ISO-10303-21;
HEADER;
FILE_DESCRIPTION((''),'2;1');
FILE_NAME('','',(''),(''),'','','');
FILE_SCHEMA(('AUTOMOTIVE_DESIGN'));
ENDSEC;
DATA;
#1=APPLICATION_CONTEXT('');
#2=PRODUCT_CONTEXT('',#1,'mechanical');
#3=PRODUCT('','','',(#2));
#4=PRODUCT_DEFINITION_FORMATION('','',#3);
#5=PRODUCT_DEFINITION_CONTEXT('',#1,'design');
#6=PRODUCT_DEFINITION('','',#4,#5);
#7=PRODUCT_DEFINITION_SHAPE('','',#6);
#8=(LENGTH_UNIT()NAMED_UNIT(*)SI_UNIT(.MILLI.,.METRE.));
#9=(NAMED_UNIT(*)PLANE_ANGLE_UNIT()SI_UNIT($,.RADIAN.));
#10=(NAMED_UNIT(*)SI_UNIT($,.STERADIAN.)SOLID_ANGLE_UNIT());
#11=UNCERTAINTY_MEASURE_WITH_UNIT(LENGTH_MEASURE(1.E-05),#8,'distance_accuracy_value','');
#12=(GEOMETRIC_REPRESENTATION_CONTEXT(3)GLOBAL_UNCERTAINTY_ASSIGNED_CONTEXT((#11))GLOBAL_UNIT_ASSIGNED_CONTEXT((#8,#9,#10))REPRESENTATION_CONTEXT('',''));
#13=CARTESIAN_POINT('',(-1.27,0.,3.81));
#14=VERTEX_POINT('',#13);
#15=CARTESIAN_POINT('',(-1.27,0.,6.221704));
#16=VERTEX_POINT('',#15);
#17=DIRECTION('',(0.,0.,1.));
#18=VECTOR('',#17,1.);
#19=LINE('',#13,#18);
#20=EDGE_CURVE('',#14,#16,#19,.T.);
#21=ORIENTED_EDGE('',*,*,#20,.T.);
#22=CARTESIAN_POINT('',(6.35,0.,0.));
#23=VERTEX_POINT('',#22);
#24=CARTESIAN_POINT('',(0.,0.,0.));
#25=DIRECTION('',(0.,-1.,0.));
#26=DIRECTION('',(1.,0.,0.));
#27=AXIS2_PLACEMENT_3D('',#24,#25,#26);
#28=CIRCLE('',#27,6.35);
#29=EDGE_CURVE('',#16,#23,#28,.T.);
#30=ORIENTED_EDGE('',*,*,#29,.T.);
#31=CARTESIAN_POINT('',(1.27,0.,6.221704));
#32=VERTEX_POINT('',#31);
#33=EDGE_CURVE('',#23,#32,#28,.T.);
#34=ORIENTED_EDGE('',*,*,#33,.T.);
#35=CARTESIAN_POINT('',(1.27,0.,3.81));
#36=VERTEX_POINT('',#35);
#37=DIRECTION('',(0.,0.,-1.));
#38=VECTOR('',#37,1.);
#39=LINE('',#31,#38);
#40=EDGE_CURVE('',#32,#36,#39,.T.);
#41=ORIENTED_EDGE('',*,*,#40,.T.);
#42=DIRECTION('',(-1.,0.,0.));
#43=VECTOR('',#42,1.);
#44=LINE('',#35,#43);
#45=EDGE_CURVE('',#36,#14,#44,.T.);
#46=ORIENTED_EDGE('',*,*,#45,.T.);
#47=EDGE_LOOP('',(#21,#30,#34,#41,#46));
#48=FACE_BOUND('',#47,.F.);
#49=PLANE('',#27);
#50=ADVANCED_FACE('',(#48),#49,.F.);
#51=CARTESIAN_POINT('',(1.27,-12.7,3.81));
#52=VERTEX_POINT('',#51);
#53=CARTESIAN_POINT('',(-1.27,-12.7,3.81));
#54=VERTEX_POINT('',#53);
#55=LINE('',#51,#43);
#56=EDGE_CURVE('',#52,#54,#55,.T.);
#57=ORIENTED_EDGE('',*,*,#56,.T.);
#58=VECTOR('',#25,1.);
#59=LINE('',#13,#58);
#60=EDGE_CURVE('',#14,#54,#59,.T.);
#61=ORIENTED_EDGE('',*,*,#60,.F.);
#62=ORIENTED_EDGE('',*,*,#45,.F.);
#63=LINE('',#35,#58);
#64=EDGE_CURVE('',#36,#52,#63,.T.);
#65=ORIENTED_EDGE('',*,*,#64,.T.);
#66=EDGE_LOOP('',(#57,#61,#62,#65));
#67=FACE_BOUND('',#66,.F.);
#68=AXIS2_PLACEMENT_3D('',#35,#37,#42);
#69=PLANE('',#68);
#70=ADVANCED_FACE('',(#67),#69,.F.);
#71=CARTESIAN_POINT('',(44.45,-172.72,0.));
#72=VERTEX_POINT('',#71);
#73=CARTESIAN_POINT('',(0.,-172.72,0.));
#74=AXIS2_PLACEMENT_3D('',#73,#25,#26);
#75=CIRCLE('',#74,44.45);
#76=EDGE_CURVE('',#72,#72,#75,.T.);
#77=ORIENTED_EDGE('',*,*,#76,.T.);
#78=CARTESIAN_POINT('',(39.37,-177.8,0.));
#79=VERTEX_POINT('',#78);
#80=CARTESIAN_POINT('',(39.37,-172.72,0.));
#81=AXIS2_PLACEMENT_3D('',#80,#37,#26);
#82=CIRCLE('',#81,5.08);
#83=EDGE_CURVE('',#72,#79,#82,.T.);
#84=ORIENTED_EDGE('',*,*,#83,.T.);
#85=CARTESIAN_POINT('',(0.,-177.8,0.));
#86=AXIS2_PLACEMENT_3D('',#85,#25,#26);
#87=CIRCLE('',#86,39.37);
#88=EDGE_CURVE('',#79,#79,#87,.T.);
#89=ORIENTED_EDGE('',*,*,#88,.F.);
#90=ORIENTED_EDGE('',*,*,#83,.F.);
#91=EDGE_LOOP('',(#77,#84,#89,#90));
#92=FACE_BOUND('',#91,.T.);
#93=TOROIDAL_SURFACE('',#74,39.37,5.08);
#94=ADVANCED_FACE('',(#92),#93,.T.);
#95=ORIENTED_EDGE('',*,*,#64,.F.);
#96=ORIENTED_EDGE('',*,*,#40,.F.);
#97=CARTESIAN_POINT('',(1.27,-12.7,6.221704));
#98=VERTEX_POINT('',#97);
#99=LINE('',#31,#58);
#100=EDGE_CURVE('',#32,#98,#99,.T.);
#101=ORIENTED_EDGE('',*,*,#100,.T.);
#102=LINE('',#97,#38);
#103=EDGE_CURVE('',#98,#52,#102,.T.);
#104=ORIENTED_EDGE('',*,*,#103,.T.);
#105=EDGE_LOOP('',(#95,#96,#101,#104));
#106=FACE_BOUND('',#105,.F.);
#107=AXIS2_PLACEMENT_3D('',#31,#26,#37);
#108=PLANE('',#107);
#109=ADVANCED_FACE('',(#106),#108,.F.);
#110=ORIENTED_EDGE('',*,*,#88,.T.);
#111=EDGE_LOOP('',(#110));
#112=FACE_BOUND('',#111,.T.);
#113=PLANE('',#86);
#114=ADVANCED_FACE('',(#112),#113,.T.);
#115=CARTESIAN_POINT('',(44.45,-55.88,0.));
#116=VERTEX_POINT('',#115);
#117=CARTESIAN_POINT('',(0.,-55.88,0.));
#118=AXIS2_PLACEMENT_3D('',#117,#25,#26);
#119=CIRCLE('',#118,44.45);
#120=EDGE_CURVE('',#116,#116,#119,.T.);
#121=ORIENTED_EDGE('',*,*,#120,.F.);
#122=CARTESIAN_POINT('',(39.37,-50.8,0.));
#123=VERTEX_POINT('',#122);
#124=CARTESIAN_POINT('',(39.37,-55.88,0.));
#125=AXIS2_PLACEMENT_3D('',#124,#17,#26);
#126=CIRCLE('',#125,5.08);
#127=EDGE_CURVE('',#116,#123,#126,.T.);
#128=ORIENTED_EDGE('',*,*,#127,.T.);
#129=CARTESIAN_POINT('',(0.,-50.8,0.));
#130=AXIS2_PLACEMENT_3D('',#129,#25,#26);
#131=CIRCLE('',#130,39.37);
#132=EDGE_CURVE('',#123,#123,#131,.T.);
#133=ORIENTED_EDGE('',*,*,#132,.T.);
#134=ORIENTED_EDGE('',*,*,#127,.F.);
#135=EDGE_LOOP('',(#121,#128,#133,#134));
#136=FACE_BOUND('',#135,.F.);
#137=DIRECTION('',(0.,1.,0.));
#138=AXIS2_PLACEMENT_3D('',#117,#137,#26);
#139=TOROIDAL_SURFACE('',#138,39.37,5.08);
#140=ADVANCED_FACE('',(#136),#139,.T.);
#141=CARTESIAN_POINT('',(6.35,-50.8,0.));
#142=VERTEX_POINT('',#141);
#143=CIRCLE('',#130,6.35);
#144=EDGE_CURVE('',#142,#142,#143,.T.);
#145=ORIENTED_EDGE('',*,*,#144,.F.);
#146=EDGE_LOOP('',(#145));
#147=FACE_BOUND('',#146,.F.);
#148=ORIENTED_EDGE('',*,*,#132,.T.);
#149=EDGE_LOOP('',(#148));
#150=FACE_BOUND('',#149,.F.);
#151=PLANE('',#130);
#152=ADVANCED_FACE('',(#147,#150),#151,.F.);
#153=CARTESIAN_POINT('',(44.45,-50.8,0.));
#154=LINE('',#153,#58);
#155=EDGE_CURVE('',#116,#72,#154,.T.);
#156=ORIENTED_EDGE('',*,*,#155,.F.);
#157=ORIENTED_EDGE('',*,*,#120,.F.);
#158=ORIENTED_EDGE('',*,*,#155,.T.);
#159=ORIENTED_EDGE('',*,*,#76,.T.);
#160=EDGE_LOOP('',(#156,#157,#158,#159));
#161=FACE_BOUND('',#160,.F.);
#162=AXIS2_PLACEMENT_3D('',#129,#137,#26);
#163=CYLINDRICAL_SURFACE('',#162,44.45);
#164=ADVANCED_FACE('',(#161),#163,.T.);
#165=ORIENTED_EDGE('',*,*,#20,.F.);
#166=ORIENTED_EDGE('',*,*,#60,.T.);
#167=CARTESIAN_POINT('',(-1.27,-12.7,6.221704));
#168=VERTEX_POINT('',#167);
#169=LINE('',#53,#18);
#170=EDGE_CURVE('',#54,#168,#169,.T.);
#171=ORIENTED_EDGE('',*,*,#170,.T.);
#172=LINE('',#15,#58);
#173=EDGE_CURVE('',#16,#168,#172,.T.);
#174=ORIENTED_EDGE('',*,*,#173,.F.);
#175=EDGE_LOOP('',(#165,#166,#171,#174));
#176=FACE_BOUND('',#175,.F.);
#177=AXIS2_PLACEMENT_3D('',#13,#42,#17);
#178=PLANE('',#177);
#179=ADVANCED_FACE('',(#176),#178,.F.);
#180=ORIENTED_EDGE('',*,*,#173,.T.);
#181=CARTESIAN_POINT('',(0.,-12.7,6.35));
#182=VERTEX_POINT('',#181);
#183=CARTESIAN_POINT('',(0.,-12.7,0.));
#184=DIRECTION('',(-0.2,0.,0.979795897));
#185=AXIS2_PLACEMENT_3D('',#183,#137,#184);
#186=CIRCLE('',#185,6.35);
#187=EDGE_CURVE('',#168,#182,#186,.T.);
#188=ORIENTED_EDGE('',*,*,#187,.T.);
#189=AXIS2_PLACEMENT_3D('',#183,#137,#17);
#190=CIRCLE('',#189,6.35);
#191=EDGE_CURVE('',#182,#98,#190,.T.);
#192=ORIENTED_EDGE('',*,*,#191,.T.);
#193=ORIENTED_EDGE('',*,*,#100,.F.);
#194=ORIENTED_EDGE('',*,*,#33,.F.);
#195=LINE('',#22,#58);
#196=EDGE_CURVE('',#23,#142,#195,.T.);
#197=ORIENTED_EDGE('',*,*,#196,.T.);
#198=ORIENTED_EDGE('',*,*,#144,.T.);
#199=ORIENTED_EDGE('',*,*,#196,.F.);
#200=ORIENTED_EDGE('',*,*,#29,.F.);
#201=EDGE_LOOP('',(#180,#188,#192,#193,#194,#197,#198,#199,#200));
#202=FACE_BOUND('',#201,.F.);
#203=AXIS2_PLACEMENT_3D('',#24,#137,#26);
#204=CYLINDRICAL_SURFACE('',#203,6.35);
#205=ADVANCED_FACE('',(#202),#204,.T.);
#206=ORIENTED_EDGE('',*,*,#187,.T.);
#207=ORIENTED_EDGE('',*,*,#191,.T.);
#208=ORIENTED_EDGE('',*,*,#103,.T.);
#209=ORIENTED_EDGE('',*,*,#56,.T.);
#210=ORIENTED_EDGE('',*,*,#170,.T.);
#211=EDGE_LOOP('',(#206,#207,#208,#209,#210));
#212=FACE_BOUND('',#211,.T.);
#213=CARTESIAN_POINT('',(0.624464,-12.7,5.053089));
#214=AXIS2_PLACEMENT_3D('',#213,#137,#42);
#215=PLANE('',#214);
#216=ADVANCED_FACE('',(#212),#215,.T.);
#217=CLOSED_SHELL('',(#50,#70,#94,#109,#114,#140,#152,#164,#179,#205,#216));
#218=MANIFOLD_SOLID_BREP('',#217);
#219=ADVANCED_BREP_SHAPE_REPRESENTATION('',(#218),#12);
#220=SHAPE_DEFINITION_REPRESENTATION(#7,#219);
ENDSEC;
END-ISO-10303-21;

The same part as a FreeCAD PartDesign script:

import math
import FreeCAD as App
import Part
import Sketcher
from FreeCAD import Vector
Q = App.Units.Quantity


def edges_at(feature, points):
    """Names of the edges that pass closest to the given points."""
    edges = feature.Shape.Edges
    near = lambda p: min(range(len(edges)), key=lambda i: edges[i].distToShape(Part.Vertex(*p))[0])
    return sorted({f"Edge{near(p) + 1}" for p in points})

doc = App.newDocument("Part")
params = doc.addObject("Spreadsheet::Sheet", "Params")
for row, (alias, value) in enumerate([
    ("sketch1_diameter", "0.5 in"),
    ("pad1_length", "2 in"),
    ("sketch2_diameter", "3.5 in"),
    ("pad2_length", "5 in"),
    ("fillet_radius", "0.2 in"),
    ("fillet2_radius", "0.2 in"),
    ("sketch3_radius", "0.25 in"),
    ("sketch3_width", "0.1 in"),
    ("pocket1_length", "0.5 in"),
], start=1):
    params.set(f"A{row}", alias)
    params.set(f"B{row}", "=" + value)
    params.setAlias(f"B{row}", alias)

body = doc.addObject("PartDesign::Body", "Body")

sketch1 = body.newObject("Sketcher::SketchObject", "Sketch")
sketch1.AttachmentSupport = (doc.getObject("XZ_Plane"), [""])
sketch1.MapMode = "FlatFace"
sketch1.addGeometry(Part.Circle(Vector(0, 0, 0), Vector(0, 0, 1), 6), False)
sketch1.addConstraint([
    Sketcher.Constraint("Coincident", 0, 3, -1, 1),
    Sketcher.Constraint("Diameter", 0, Q("0.5 in")),
])
sketch1.setExpression("Constraints[1]", "Params.sketch1_diameter")
pad1 = body.newObject("PartDesign::Pad", "Pad")
pad1.Profile = sketch1
pad1.setExpression("Length", "Params.pad1_length")

sketch2 = body.newObject("Sketcher::SketchObject", "Sketch001")
sketch2.AttachmentSupport = (doc.getObject("XZ_Plane"), [""])
sketch2.MapMode = "FlatFace"
sketch2.AttachmentOffset = App.Placement(Vector(0, 0, 2 * 25.4), App.Rotation())
sketch2.addGeometry(Part.Circle(Vector(0, 0, 0), Vector(0, 0, 1), 44), False)
sketch2.addConstraint([
    Sketcher.Constraint("Coincident", 0, 3, -1, 1),
    Sketcher.Constraint("Diameter", 0, Q("3.5 in")),
])
sketch2.setExpression("Constraints[1]", "Params.sketch2_diameter")
pad2 = body.newObject("PartDesign::Pad", "Pad001")
pad2.Profile = sketch2
pad2.setExpression("Length", "Params.pad2_length")
doc.recompute()

fillet = body.newObject("PartDesign::Fillet", "Fillet")
fillet.Base = (pad2, edges_at(pad2, [(-44.45, -50.8, 0)]))
fillet.setExpression("Radius", "Params.fillet_radius")
doc.recompute()

fillet2 = body.newObject("PartDesign::Fillet", "Fillet001")
fillet2.Base = (fillet, edges_at(fillet, [(-44.45, -177.8, 0)]))
fillet2.setExpression("Radius", "Params.fillet2_radius")

sketch3 = body.newObject("Sketcher::SketchObject", "Sketch002")
sketch3.AttachmentSupport = (doc.getObject("XZ_Plane"), [""])
sketch3.MapMode = "FlatFace"
sketch3.addGeometry([
    Part.ArcOfCircle(Part.Circle(Vector(0, 0, 0), Vector(0, 0, 1), 6.3), math.radians(78.46), math.radians(90)),
    Part.LineSegment(Vector(1.3, 6.2, 0), Vector(1.3, 3.8, 0)),
    Part.LineSegment(Vector(1.3, 3.8, 0), Vector(-1.3, 3.8, 0)),
    Part.LineSegment(Vector(-1.3, 3.8, 0), Vector(-1.3, 6.2, 0)),
    Part.ArcOfCircle(Part.Circle(Vector(0, 0, 0), Vector(0, 0, 1), 6.3), math.radians(90), math.radians(101.54)),
], False)
sketch3.addConstraint([
    Sketcher.Constraint("Coincident", 0, 1, 1, 1),
    Sketcher.Constraint("Coincident", 1, 2, 2, 1),
    Sketcher.Constraint("Coincident", 2, 2, 3, 1),
    Sketcher.Constraint("Coincident", 3, 2, 4, 2),
    Sketcher.Constraint("Tangent", 4, 1, 0, 2),
    Sketcher.Constraint("Vertical", 1),
    Sketcher.Constraint("Horizontal", 2),
    Sketcher.Constraint("Vertical", 3),
    Sketcher.Constraint("Coincident", 0, 3, -1, 1),
    Sketcher.Constraint("Equal", 0, 4),
    Sketcher.Constraint("PointOnObject", 4, 1, -2),
    Sketcher.Constraint("Horizontal", 0, 1, 3, 2),
    Sketcher.Constraint("Radius", 0, Q("0.25 in")),
    Sketcher.Constraint("DistanceX", 2, 2, 2, 1, Q("0.1 in")),
    Sketcher.Constraint("DistanceY", 1, 2, 4, 1, Q("0.1 in")),
])
sketch3.setExpression("Constraints[12]", "Params.sketch3_radius")
sketch3.setExpression("Constraints[13]", "Params.sketch3_width")
pocket1 = body.newObject("PartDesign::Pocket", "Pocket")
pocket1.Profile = sketch3
pocket1.setExpression("Length", "Params.pocket1_length")
pocket1.Reversed = True

doc.recompute()
